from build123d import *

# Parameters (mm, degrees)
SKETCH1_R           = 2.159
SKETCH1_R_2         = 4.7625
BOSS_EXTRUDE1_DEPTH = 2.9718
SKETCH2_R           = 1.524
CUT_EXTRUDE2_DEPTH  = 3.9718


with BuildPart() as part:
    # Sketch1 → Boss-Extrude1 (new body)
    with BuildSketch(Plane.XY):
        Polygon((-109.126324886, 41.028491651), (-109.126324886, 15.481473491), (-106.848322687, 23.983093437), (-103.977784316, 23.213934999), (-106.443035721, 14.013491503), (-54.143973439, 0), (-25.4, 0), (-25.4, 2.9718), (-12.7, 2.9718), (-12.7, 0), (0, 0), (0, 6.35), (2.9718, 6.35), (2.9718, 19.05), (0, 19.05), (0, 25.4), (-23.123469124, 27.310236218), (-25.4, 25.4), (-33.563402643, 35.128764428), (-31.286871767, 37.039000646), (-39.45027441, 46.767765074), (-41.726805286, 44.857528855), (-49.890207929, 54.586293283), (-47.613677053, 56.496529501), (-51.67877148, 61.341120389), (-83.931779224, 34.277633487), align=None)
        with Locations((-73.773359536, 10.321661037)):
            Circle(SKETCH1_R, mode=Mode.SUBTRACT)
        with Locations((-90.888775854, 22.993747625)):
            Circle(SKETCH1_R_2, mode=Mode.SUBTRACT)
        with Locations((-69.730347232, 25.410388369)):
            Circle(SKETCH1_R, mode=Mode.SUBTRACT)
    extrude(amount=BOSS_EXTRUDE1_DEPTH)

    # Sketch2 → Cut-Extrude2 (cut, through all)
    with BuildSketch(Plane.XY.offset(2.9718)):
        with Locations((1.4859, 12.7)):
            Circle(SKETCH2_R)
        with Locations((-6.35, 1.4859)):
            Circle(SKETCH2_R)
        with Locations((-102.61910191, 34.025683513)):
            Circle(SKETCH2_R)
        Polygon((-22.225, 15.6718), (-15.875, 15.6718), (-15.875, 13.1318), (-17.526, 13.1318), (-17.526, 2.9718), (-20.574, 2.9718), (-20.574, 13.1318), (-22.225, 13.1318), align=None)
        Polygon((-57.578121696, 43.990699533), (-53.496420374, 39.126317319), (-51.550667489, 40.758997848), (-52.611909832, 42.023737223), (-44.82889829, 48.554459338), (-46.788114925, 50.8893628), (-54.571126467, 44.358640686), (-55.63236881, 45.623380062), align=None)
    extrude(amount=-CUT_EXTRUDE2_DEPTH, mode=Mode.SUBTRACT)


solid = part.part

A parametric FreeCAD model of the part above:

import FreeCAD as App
import Part
import Sketcher
Q = App.Units.Quantity

doc = App.newDocument("Part")
body = doc.addObject("PartDesign::Body", "Body")

# Sketch on XY plane
sketch1 = body.newObject("Sketcher::SketchObject", "Sketch")
sketch1.AttachmentSupport = (doc.getObject("XY_Plane"), [""])
sketch1.MapMode = "FlatFace"
sketch1.addGeometry([
    Part.LineSegment(App.Vector(-109.126325, 41.028492, 0), App.Vector(-109.126325, 15.481473, 0)),  # 0
    Part.LineSegment(App.Vector(-109.126325, 15.481473, 0), App.Vector(-106.848323, 23.983093, 0)),  # 1
    Part.LineSegment(App.Vector(-106.848323, 23.983093, 0), App.Vector(-103.977784, 23.213935, 0)),  # 2
    Part.LineSegment(App.Vector(-103.977784, 23.213935, 0), App.Vector(-106.443036, 14.013492, 0)),  # 3
    Part.LineSegment(App.Vector(-106.443036, 14.013492, 0), App.Vector(-54.143973, 0, 0)),  # 4
    Part.LineSegment(App.Vector(-54.143973, 0, 0), App.Vector(-25.4, 0, 0)),  # 5
    Part.LineSegment(App.Vector(-25.4, 0, 0), App.Vector(-25.4, 2.9718, 0)),  # 6
    Part.LineSegment(App.Vector(-25.4, 2.9718, 0), App.Vector(-12.7, 2.9718, 0)),  # 7
    Part.LineSegment(App.Vector(-12.7, 2.9718, 0), App.Vector(-12.7, 0, 0)),  # 8
    Part.LineSegment(App.Vector(-12.7, 0, 0), App.Vector(0, 0, 0)),  # 9
    Part.LineSegment(App.Vector(0, 0, 0), App.Vector(0, 6.35, 0)),  # 10
    Part.LineSegment(App.Vector(0, 6.35, 0), App.Vector(2.9718, 6.35, 0)),  # 11
    Part.LineSegment(App.Vector(2.9718, 6.35, 0), App.Vector(2.9718, 19.05, 0)),  # 12
    Part.LineSegment(App.Vector(2.9718, 19.05, 0), App.Vector(0, 19.05, 0)),  # 13
    Part.LineSegment(App.Vector(0, 19.05, 0), App.Vector(0, 25.4, 0)),  # 14
    Part.LineSegment(App.Vector(0, 25.4, 0), App.Vector(-23.123469, 27.310236, 0)),  # 15
    Part.LineSegment(App.Vector(-23.123469, 27.310236, 0), App.Vector(-25.4, 25.4, 0)),  # 16
    Part.LineSegment(App.Vector(-25.4, 25.4, 0), App.Vector(-33.563403, 35.128764, 0)),  # 17
    Part.LineSegment(App.Vector(-33.563403, 35.128764, 0), App.Vector(-31.286872, 37.039001, 0)),  # 18
    Part.LineSegment(App.Vector(-31.286872, 37.039001, 0), App.Vector(-39.450274, 46.767765, 0)),  # 19
    Part.LineSegment(App.Vector(-39.450274, 46.767765, 0), App.Vector(-41.726805, 44.857529, 0)),  # 20
    Part.LineSegment(App.Vector(-41.726805, 44.857529, 0), App.Vector(-49.890208, 54.586293, 0)),  # 21
    Part.LineSegment(App.Vector(-49.890208, 54.586293, 0), App.Vector(-47.613677, 56.49653, 0)),  # 22
    Part.LineSegment(App.Vector(-47.613677, 56.49653, 0), App.Vector(-51.678771, 61.34112, 0)),  # 23
    Part.LineSegment(App.Vector(-51.678771, 61.34112, 0), App.Vector(-83.931779, 34.277633, 0)),  # 24
    Part.LineSegment(App.Vector(-83.931779, 34.277633, 0), App.Vector(-109.126325, 41.028492, 0)),  # 25
    Part.Circle(App.Vector(-73.77336, 10.321661, 0), App.Vector(0, 0, 1), 2.159),  # 26
    Part.Circle(App.Vector(-90.888776, 22.993748, 0), App.Vector(0, 0, 1), 4.7625),  # 27
    Part.Circle(App.Vector(-69.730347, 25.410388, 0), App.Vector(0, 0, 1), 2.159),  # 28
], False)
sketch1.addConstraint([
    Sketcher.Constraint("Coincident", 0, 2, 1, 1),
    Sketcher.Constraint("Coincident", 1, 2, 2, 1),
    Sketcher.Constraint("Coincident", 2, 2, 3, 1),
    Sketcher.Constraint("Coincident", 3, 2, 4, 1),
    Sketcher.Constraint("Coincident", 4, 2, 5, 1),
    Sketcher.Constraint("Coincident", 5, 2, 6, 1),
    Sketcher.Constraint("Coincident", 6, 2, 7, 1),
    Sketcher.Constraint("Coincident", 7, 2, 8, 1),
    Sketcher.Constraint("Coincident", 8, 2, 9, 1),
    Sketcher.Constraint("Coincident", 9, 2, 10, 1),
    Sketcher.Constraint("Coincident", 10, 2, 11, 1),
    Sketcher.Constraint("Coincident", 11, 2, 12, 1),
    Sketcher.Constraint("Coincident", 12, 2, 13, 1),
    Sketcher.Constraint("Coincident", 13, 2, 14, 1),
    Sketcher.Constraint("Coincident", 14, 2, 15, 1),
    Sketcher.Constraint("Coincident", 15, 2, 16, 1),
    Sketcher.Constraint("Coincident", 16, 2, 17, 1),
    Sketcher.Constraint("Coincident", 17, 2, 18, 1),
    Sketcher.Constraint("Coincident", 18, 2, 19, 1),
    Sketcher.Constraint("Coincident", 19, 2, 20, 1),
    Sketcher.Constraint("Coincident", 20, 2, 21, 1),
    Sketcher.Constraint("Coincident", 21, 2, 22, 1),
    Sketcher.Constraint("Coincident", 22, 2, 23, 1),
    Sketcher.Constraint("Coincident", 23, 2, 24, 1),
    Sketcher.Constraint("Coincident", 24, 2, 25, 1),
    Sketcher.Constraint("Coincident", 25, 2, 0, 1),
    Sketcher.Constraint("Vertical", 0),
    Sketcher.Constraint("Horizontal", 5),
    Sketcher.Constraint("Vertical", 6),
    Sketcher.Constraint("Horizontal", 7),
    Sketcher.Constraint("Vertical", 8),
    Sketcher.Constraint("Horizontal", 9),
    Sketcher.Constraint("Vertical", 10),
    Sketcher.Constraint("Horizontal", 11),
    Sketcher.Constraint("Vertical", 12),
    Sketcher.Constraint("Horizontal", 13),
    Sketcher.Constraint("Vertical", 14),
    Sketcher.Constraint("Coincident", 9, 2, -1, 1),
    Sketcher.Constraint("Equal", 26, 28),
    Sketcher.Constraint("PointOnObject", 4, 2, -1),
    Sketcher.Constraint("PointOnObject", 13, 2, -2),
    Sketcher.Constraint("Perpendicular", 1, 2),
    Sketcher.Constraint("Perpendicular", 2, 3),
    Sketcher.Constraint("Perpendicular", 3, 4),
    Sketcher.Constraint("Perpendicular", 16, 17),
    Sketcher.Constraint("Perpendicular", 17, 18),
    Sketcher.Constraint("Perpendicular", 18, 19),
    Sketcher.Constraint("Perpendicular", 19, 20),
    Sketcher.Constraint("Perpendicular", 20, 21),
    Sketcher.Constraint("Perpendicular", 21, 22),
    Sketcher.Constraint("Perpendicular", 22, 23),
    Sketcher.Constraint("Perpendicular", 23, 24),
    Sketcher.Constraint("Parallel", 4, 25),
    Sketcher.Constraint("Horizontal", 14, 2, 16, 2),
    Sketcher.Constraint("Vertical", 6, 2, 16, 2),
    Sketcher.Constraint("Equal", 7, 9),
    Sketcher.Constraint("Equal", 13, 6),
    Sketcher.Constraint("Equal", 9, 12),
    Sketcher.Constraint("Equal", 10, 14),
    Sketcher.Constraint("Equal", 2, 16),
    Sketcher.Constraint("Equal", 16, 18),
    Sketcher.Constraint("Equal", 17, 19),
    Sketcher.Constraint("Equal", 18, 20),
    Sketcher.Constraint("Equal", 19, 21),
    Sketcher.Constraint("Equal", 20, 22),
    Sketcher.Constraint("Diameter", 26, Q("0.17 in")),
    Sketcher.Constraint("Diameter", 27, Q("0.375 in")),
    Sketcher.Constraint("DistanceX", 7, 1, 7, 2, Q("0.5 in")),
    Sketcher.Constraint("DistanceY", -1, 1, 14, 2, Q("1 in")),
    Sketcher.Constraint("Angle", 1, Q("75 deg")),
    Sketcher.Constraint("Angle", 16, Q("-140 deg")),
    Sketcher.Constraint("Distance", 17, Q("0.5 in")),
    Sketcher.Constraint("DistanceX", 11, 1, 11, 2, Q("0.117 in")),
    Sketcher.Constraint("Distance", 2, Q("0.117 in")),
    Sketcher.Constraint("Distance", 3, Q("0.375 in")),
    Sketcher.Constraint("DistanceY", 0, 2, 0, 1, Q("25.547018 mm")),
    Sketcher.Constraint("DistanceX", 23, 2, 18, 2, Q("20.3919 mm")),
    Sketcher.Constraint("DistanceY", 2, 2, 24, 2, Q("11.063698 mm")),
    Sketcher.Constraint("DistanceY", 1, 2, 25, 2, Q("17.045398 mm")),
    Sketcher.Constraint("Distance", 24, Q("42.103311 mm")),
    Sketcher.Constraint("DistanceX", 26, 3, -1, 1, Q("73.77336 mm")),
    Sketcher.Constraint("DistanceY", -1, 1, 26, 3, Q("10.321661 mm")),
    Sketcher.Constraint("DistanceY", -1, 1, 28, 3, Q("25.410388 mm")),
    Sketcher.Constraint("DistanceX", 27, 3, 28, 3, Q("21.158429 mm")),
    Sketcher.Constraint("DistanceY", 27, 3, 28, 3, Q("2.416641 mm")),
    Sketcher.Constraint("DistanceX", 0, 2, 27, 3, Q("18.237549 mm")),
])
pad1 = body.newObject("PartDesign::Pad", "Pad")
pad1.Profile = sketch1
pad1.Length = Q("0.117 in")

# Sketch on XY plane
sketch2 = body.newObject("Sketcher::SketchObject", "Sketch001")
sketch2.AttachmentSupport = (doc.getObject("XY_Plane"), [""])
sketch2.MapMode = "FlatFace"
sketch2.AttachmentOffset = App.Placement(App.Vector(0, 0, 0.117 * 25.4), App.Rotation())
sketch2.addGeometry([
    Part.Circle(App.Vector(1.4859, 12.7, 0), App.Vector(0, 0, 1), 1.524),  # 0
    Part.Circle(App.Vector(-6.35, 1.4859, 0), App.Vector(0, 0, 1), 1.524),  # 1
    Part.Circle(App.Vector(-102.619102, 34.025684, 0), App.Vector(0, 0, 1), 1.524),  # 2
    Part.LineSegment(App.Vector(-15.875, 15.6718, 0), App.Vector(-22.225, 15.6718, 0)),  # 3
    Part.LineSegment(App.Vector(-22.225, 15.6718, 0), App.Vector(-22.225, 13.1318, 0)),  # 4
    Part.LineSegment(App.Vector(-22.225, 13.1318, 0), App.Vector(-20.574, 13.1318, 0)),  # 5
    Part.LineSegment(App.Vector(-20.574, 13.1318, 0), App.Vector(-20.574, 2.9718, 0)),  # 6
    Part.LineSegment(App.Vector(-20.574, 2.9718, 0), App.Vector(-17.526, 2.9718, 0)),  # 7
    Part.LineSegment(App.Vector(-17.526, 2.9718, 0), App.Vector(-17.526, 13.1318, 0)),  # 8
    Part.LineSegment(App.Vector(-17.526, 13.1318, 0), App.Vector(-15.875, 13.1318, 0)),  # 9
    Part.LineSegment(App.Vector(-15.875, 13.1318, 0), App.Vector(-15.875, 15.6718, 0)),  # 10
    Part.LineSegment(App.Vector(-57.578122, 43.9907, 0), App.Vector(-53.49642, 39.126317, 0)),  # 11
    Part.LineSegment(App.Vector(-53.49642, 39.126317, 0), App.Vector(-51.550667, 40.758998, 0)),  # 12
    Part.LineSegment(App.Vector(-51.550667, 40.758998, 0), App.Vector(-52.61191, 42.023737, 0)),  # 13
    Part.LineSegment(App.Vector(-52.61191, 42.023737, 0), App.Vector(-44.828898, 48.554459, 0)),  # 14
    Part.LineSegment(App.Vector(-44.828898, 48.554459, 0), App.Vector(-46.788115, 50.889363, 0)),  # 15
    Part.LineSegment(App.Vector(-46.788115, 50.889363, 0), App.Vector(-54.571126, 44.358641, 0)),  # 16
    Part.LineSegment(App.Vector(-54.571126, 44.358641, 0), App.Vector(-55.632369, 45.62338, 0)),  # 17
    Part.LineSegment(App.Vector(-55.632369, 45.62338, 0), App.Vector(-57.578122, 43.9907, 0)),  # 18
], False)
sketch2.addConstraint([
    Sketcher.Constraint("Coincident", 3, 2, 4, 1),
    Sketcher.Constraint("Coincident", 4, 2, 5, 1),
    Sketcher.Constraint("Coincident", 5, 2, 6, 1),
    Sketcher.Constraint("Coincident", 6, 2, 7, 1),
    Sketcher.Constraint("Coincident", 7, 2, 8, 1),
    Sketcher.Constraint("Coincident", 8, 2, 9, 1),
    Sketcher.Constraint("Coincident", 9, 2, 10, 1),
    Sketcher.Constraint("Coincident", 10, 2, 3, 1),
    Sketcher.Constraint("Coincident", 11, 2, 12, 1),
    Sketcher.Constraint("Coincident", 12, 2, 13, 1),
    Sketcher.Constraint("Coincident", 13, 2, 14, 1),
    Sketcher.Constraint("Coincident", 14, 2, 15, 1),
    Sketcher.Constraint("Coincident", 15, 2, 16, 1),
    Sketcher.Constraint("Coincident", 16, 2, 17, 1),
    Sketcher.Constraint("Coincident", 17, 2, 18, 1),
    Sketcher.Constraint("Coincident", 18, 2, 11, 1),
    Sketcher.Constraint("Horizontal", 3),
    Sketcher.Constraint("Vertical", 4),
    Sketcher.Constraint("Horizontal", 5),
    Sketcher.Constraint("Vertical", 6),
    Sketcher.Constraint("Horizontal", 7),
    Sketcher.Constraint("Vertical", 8),
    Sketcher.Constraint("Horizontal", 9),
    Sketcher.Constraint("Vertical", 10),
    Sketcher.Constraint("Equal", 0, 1),
    Sketcher.Constraint("Equal", 1, 2),
    Sketcher.Constraint("Perpendicular", 11, 12),
    Sketcher.Constraint("Perpendicular", 12, 13),
    Sketcher.Constraint("Perpendicular", 13, 14),
    Sketcher.Constraint("Perpendicular", 14, 15),
    Sketcher.Constraint("Perpendicular", 15, 16),
    Sketcher.Constraint("Perpendicular", 16, 17),
    Sketcher.Constraint("Perpendicular", 17, 18),
    Sketcher.Constraint("Horizontal", 5, 2, 8, 2),
    Sketcher.Constraint("Equal", 5, 9),
    Sketcher.Constraint("Equal", 14, 16),
    Sketcher.Constraint("Equal", 13, 17),
    Sketcher.Constraint("Diameter", 0, Q("0.12 in")),
    Sketcher.Constraint("DistanceY", 4, 2, 4, 1, Q("0.1 in")),
    Sketcher.Constraint("DistanceY", 6, 2, 6, 1, Q("0.4 in")),
    Sketcher.Constraint("Angle", 11, Q("-50 deg")),
    Sketcher.Constraint("Distance", 12, Q("0.1 in")),
    Sketcher.Constraint("Distance", 14, Q("0.4 in")),
    Sketcher.Constraint("DistanceX", 3, 2, 3, 1, Q("0.25 in")),
    Sketcher.Constraint("DistanceX", 7, 1, 7, 2, Q("0.12 in")),
    Sketcher.Constraint("DistanceY", -1, 1, 0, 3, Q("0.5 in")),
    Sketcher.Constraint("Distance", 11, Q("0.25 in")),
    Sketcher.Constraint("Distance", 15, Q("0.12 in")),
    Sketcher.Constraint("DistanceX", 1, 3, -1, 1, Q("0.25 in")),
    Sketcher.Constraint("DistanceX", 5, 2, -1, 1, Q("0.81 in")),
    Sketcher.Constraint("DistanceY", -1, 1, 3, 2, Q("0.617 in")),
    Sketcher.Constraint("DistanceX", -1, 1, 0, 3, Q("0.0585 in")),
    Sketcher.Constraint("DistanceY", -1, 1, 1, 3, Q("0.0585 in")),
    Sketcher.Constraint("DistanceX", 2, 3, -1, 1, Q("102.619102 mm")),
    Sketcher.Constraint("DistanceX", 14, 2, -1, 1, Q("44.828898 mm")),
    Sketcher.Constraint("DistanceY", -1, 1, 18, 2, Q("43.9907 mm")),
    Sketcher.Constraint("DistanceY", -1, 1, 2, 3, Q("34.025684 mm")),
])
pocket1 = body.newObject("PartDesign::Pocket", "Pocket")
pocket1.Profile = sketch2
pocket1.Type = "ThroughAll"

doc.recompute()
